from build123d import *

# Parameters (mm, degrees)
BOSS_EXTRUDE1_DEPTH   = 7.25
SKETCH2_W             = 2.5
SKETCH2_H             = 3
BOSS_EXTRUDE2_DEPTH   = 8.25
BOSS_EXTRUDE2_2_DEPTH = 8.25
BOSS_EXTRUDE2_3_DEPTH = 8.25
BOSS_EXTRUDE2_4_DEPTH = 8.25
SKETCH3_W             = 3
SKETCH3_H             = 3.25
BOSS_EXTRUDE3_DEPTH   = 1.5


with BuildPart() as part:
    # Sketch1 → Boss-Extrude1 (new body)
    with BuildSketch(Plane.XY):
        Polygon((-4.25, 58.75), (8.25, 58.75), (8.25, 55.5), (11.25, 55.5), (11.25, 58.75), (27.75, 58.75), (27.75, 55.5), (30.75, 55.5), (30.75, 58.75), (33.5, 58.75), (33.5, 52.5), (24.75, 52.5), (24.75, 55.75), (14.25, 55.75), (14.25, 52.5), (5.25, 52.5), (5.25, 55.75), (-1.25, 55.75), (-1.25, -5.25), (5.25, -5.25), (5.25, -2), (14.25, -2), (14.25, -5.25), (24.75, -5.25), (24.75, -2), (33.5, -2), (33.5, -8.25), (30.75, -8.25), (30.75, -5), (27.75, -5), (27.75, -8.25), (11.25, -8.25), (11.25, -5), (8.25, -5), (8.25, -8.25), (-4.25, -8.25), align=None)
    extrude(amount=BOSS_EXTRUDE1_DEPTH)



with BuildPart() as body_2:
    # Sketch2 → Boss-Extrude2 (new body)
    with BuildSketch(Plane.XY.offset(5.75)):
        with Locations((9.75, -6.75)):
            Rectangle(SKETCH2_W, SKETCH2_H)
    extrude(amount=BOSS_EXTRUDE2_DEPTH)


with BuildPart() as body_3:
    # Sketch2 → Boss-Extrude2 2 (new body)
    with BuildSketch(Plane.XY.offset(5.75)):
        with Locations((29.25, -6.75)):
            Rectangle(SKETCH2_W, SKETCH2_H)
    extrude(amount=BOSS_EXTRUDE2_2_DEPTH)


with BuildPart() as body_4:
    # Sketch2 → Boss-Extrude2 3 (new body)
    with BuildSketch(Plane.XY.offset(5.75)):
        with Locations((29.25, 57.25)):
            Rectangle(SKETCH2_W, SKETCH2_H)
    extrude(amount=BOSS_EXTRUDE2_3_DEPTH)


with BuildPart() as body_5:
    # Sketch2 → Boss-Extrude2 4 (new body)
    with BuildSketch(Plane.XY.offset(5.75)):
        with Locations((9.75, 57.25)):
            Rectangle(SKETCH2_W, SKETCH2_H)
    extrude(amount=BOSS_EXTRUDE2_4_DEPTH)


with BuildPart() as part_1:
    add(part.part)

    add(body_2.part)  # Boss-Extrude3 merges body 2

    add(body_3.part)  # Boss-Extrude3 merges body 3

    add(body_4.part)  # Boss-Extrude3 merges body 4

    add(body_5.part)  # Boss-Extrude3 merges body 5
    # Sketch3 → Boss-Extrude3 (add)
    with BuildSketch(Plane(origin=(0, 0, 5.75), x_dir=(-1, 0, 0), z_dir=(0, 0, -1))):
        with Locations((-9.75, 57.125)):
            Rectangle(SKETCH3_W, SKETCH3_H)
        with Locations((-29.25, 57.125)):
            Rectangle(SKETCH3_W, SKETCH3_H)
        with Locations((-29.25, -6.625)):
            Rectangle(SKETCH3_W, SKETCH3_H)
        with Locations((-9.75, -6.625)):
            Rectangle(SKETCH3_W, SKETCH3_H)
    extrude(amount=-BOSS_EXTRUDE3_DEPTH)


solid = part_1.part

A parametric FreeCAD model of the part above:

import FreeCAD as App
import Part
import Sketcher
Q = App.Units.Quantity

doc = App.newDocument("Part")
body = doc.addObject("PartDesign::Body", "Body")

# Sketch on XY plane
sketch1 = body.newObject("Sketcher::SketchObject", "Sketch")
sketch1.AttachmentSupport = (doc.getObject("XY_Plane"), [""])
sketch1.MapMode = "FlatFace"
sketch1.addGeometry(Part.LineSegment(App.Vector(8.25, 58.75, 0), App.Vector(-4.25, 58.75, 0)), False)
sketch1.addGeometry(Part.LineSegment(App.Vector(-4.25, 58.75, 0), App.Vector(-4.25, -8.25, 0)), False)
sketch1.addGeometry(Part.LineSegment(App.Vector(-4.25, -8.25, 0), App.Vector(8.25, -8.25, 0)), False)
sketch1.addGeometry(Part.LineSegment(App.Vector(8.25, -8.25, 0), App.Vector(8.25, -5, 0)), False)
sketch1.addGeometry(Part.LineSegment(App.Vector(8.25, -5, 0), App.Vector(11.25, -5, 0)), False)
sketch1.addGeometry(Part.LineSegment(App.Vector(11.25, -5, 0), App.Vector(11.25, -8.25, 0)), False)
sketch1.addGeometry(Part.LineSegment(App.Vector(11.25, -8.25, 0), App.Vector(27.75, -8.25, 0)), False)
sketch1.addGeometry(Part.LineSegment(App.Vector(27.75, -8.25, 0), App.Vector(27.75, -5, 0)), False)
sketch1.addGeometry(Part.LineSegment(App.Vector(27.75, -5, 0), App.Vector(30.75, -5, 0)), False)
sketch1.addGeometry(Part.LineSegment(App.Vector(30.75, -5, 0), App.Vector(30.75, -8.25, 0)), False)
sketch1.addGeometry(Part.LineSegment(App.Vector(30.75, -8.25, 0), App.Vector(33.5, -8.25, 0)), False)
sketch1.addGeometry(Part.LineSegment(App.Vector(33.5, -8.25, 0), App.Vector(33.5, -2, 0)), False)
sketch1.addGeometry(Part.LineSegment(App.Vector(33.5, -2, 0), App.Vector(24.75, -2, 0)), False)
sketch1.addGeometry(Part.LineSegment(App.Vector(24.75, -2, 0), App.Vector(24.75, -5.25, 0)), False)
sketch1.addGeometry(Part.LineSegment(App.Vector(24.75, -5.25, 0), App.Vector(14.25, -5.25, 0)), False)
sketch1.addGeometry(Part.LineSegment(App.Vector(14.25, -5.25, 0), App.Vector(14.25, -2, 0)), False)
sketch1.addGeometry(Part.LineSegment(App.Vector(14.25, -2, 0), App.Vector(5.25, -2, 0)), False)
sketch1.addGeometry(Part.LineSegment(App.Vector(5.25, -2, 0), App.Vector(5.25, -5.25, 0)), False)
sketch1.addGeometry(Part.LineSegment(App.Vector(5.25, -5.25, 0), App.Vector(-1.25, -5.25, 0)), False)
sketch1.addGeometry(Part.LineSegment(App.Vector(-1.25, -5.25, 0), App.Vector(-1.25, 55.75, 0)), False)
sketch1.addGeometry(Part.LineSegment(App.Vector(-1.25, 55.75, 0), App.Vector(5.25, 55.75, 0)), False)
sketch1.addGeometry(Part.LineSegment(App.Vector(5.25, 55.75, 0), App.Vector(5.25, 52.5, 0)), False)
sketch1.addGeometry(Part.LineSegment(App.Vector(5.25, 52.5, 0), App.Vector(14.25, 52.5, 0)), False)
sketch1.addGeometry(Part.LineSegment(App.Vector(14.25, 52.5, 0), App.Vector(14.25, 55.75, 0)), False)
sketch1.addGeometry(Part.LineSegment(App.Vector(14.25, 55.75, 0), App.Vector(24.75, 55.75, 0)), False)
sketch1.addGeometry(Part.LineSegment(App.Vector(24.75, 55.75, 0), App.Vector(24.75, 52.5, 0)), False)
sketch1.addGeometry(Part.LineSegment(App.Vector(24.75, 52.5, 0), App.Vector(33.5, 52.5, 0)), False)
sketch1.addGeometry(Part.LineSegment(App.Vector(33.5, 52.5, 0), App.Vector(33.5, 58.75, 0)), False)
sketch1.addGeometry(Part.LineSegment(App.Vector(33.5, 58.75, 0), App.Vector(30.75, 58.75, 0)), False)
sketch1.addGeometry(Part.LineSegment(App.Vector(30.75, 58.75, 0), App.Vector(30.75, 55.5, 0)), False)
sketch1.addGeometry(Part.LineSegment(App.Vector(30.75, 55.5, 0), App.Vector(27.75, 55.5, 0)), False)
sketch1.addGeometry(Part.LineSegment(App.Vector(27.75, 55.5, 0), App.Vector(27.75, 58.75, 0)), False)
sketch1.addGeometry(Part.LineSegment(App.Vector(27.75, 58.75, 0), App.Vector(11.25, 58.75, 0)), False)
sketch1.addGeometry(Part.LineSegment(App.Vector(11.25, 58.75, 0), App.Vector(11.25, 55.5, 0)), False)
sketch1.addGeometry(Part.LineSegment(App.Vector(11.25, 55.5, 0), App.Vector(8.25, 55.5, 0)), False)
sketch1.addGeometry(Part.LineSegment(App.Vector(8.25, 55.5, 0), App.Vector(8.25, 58.75, 0)), False)
sketch1.addConstraint(Sketcher.Constraint("Coincident", 0, 2, 1, 1))
sketch1.addConstraint(Sketcher.Constraint("Coincident", 1, 2, 2, 1))
sketch1.addConstraint(Sketcher.Constraint("Coincident", 2, 2, 3, 1))
sketch1.addConstraint(Sketcher.Constraint("Coincident", 3, 2, 4, 1))
sketch1.addConstraint(Sketcher.Constraint("Coincident", 4, 2, 5, 1))
sketch1.addConstraint(Sketcher.Constraint("Coincident", 5, 2, 6, 1))
sketch1.addConstraint(Sketcher.Constraint("Coincident", 6, 2, 7, 1))
sketch1.addConstraint(Sketcher.Constraint("Coincident", 7, 2, 8, 1))
sketch1.addConstraint(Sketcher.Constraint("Coincident", 8, 2, 9, 1))
sketch1.addConstraint(Sketcher.Constraint("Coincident", 9, 2, 10, 1))
sketch1.addConstraint(Sketcher.Constraint("Coincident", 10, 2, 11, 1))
sketch1.addConstraint(Sketcher.Constraint("Coincident", 11, 2, 12, 1))
sketch1.addConstraint(Sketcher.Constraint("Coincident", 12, 2, 13, 1))
sketch1.addConstraint(Sketcher.Constraint("Coincident", 13, 2, 14, 1))
sketch1.addConstraint(Sketcher.Constraint("Coincident", 14, 2, 15, 1))
sketch1.addConstraint(Sketcher.Constraint("Coincident", 15, 2, 16, 1))
sketch1.addConstraint(Sketcher.Constraint("Coincident", 16, 2, 17, 1))
sketch1.addConstraint(Sketcher.Constraint("Coincident", 17, 2, 18, 1))
sketch1.addConstraint(Sketcher.Constraint("Coincident", 18, 2, 19, 1))
sketch1.addConstraint(Sketcher.Constraint("Coincident", 19, 2, 20, 1))
sketch1.addConstraint(Sketcher.Constraint("Coincident", 20, 2, 21, 1))
sketch1.addConstraint(Sketcher.Constraint("Coincident", 21, 2, 22, 1))
sketch1.addConstraint(Sketcher.Constraint("Coincident", 22, 2, 23, 1))
sketch1.addConstraint(Sketcher.Constraint("Coincident", 23, 2, 24, 1))
sketch1.addConstraint(Sketcher.Constraint("Coincident", 24, 2, 25, 1))
sketch1.addConstraint(Sketcher.Constraint("Coincident", 25, 2, 26, 1))
sketch1.addConstraint(Sketcher.Constraint("Coincident", 26, 2, 27, 1))
sketch1.addConstraint(Sketcher.Constraint("Coincident", 27, 2, 28, 1))
sketch1.addConstraint(Sketcher.Constraint("Coincident", 28, 2, 29, 1))
sketch1.addConstraint(Sketcher.Constraint("Coincident", 29, 2, 30, 1))
sketch1.addConstraint(Sketcher.Constraint("Coincident", 30, 2, 31, 1))
sketch1.addConstraint(Sketcher.Constraint("Coincident", 31, 2, 32, 1))
sketch1.addConstraint(Sketcher.Constraint("Coincident", 32, 2, 33, 1))
sketch1.addConstraint(Sketcher.Constraint("Coincident", 33, 2, 34, 1))
sketch1.addConstraint(Sketcher.Constraint("Coincident", 34, 2, 35, 1))
sketch1.addConstraint(Sketcher.Constraint("Coincident", 35, 2, 0, 1))
sketch1.addConstraint(Sketcher.Constraint("Horizontal", 0))
sketch1.addConstraint(Sketcher.Constraint("Vertical", 1))
sketch1.addConstraint(Sketcher.Constraint("Horizontal", 2))
sketch1.addConstraint(Sketcher.Constraint("Vertical", 3))
sketch1.addConstraint(Sketcher.Constraint("Horizontal", 4))
sketch1.addConstraint(Sketcher.Constraint("Vertical", 5))
sketch1.addConstraint(Sketcher.Constraint("Horizontal", 6))
sketch1.addConstraint(Sketcher.Constraint("Vertical", 7))
sketch1.addConstraint(Sketcher.Constraint("Horizontal", 8))
sketch1.addConstraint(Sketcher.Constraint("Vertical", 9))
sketch1.addConstraint(Sketcher.Constraint("Horizontal", 10))
sketch1.addConstraint(Sketcher.Constraint("Vertical", 11))
sketch1.addConstraint(Sketcher.Constraint("Horizontal", 12))
sketch1.addConstraint(Sketcher.Constraint("Vertical", 13))
sketch1.addConstraint(Sketcher.Constraint("Horizontal", 14))
sketch1.addConstraint(Sketcher.Constraint("Vertical", 15))
sketch1.addConstraint(Sketcher.Constraint("Horizontal", 16))
sketch1.addConstraint(Sketcher.Constraint("Vertical", 17))
sketch1.addConstraint(Sketcher.Constraint("Horizontal", 18))
sketch1.addConstraint(Sketcher.Constraint("Vertical", 19))
sketch1.addConstraint(Sketcher.Constraint("Horizontal", 20))
sketch1.addConstraint(Sketcher.Constraint("Vertical", 21))
sketch1.addConstraint(Sketcher.Constraint("Horizontal", 22))
sketch1.addConstraint(Sketcher.Constraint("Vertical", 23))
sketch1.addConstraint(Sketcher.Constraint("Horizontal", 24))
sketch1.addConstraint(Sketcher.Constraint("Vertical", 25))
sketch1.addConstraint(Sketcher.Constraint("Horizontal", 26))
sketch1.addConstraint(Sketcher.Constraint("Vertical", 27))
sketch1.addConstraint(Sketcher.Constraint("Horizontal", 28))
sketch1.addConstraint(Sketcher.Constraint("Vertical", 29))
sketch1.addConstraint(Sketcher.Constraint("Horizontal", 30))
sketch1.addConstraint(Sketcher.Constraint("Vertical", 31))
sketch1.addConstraint(Sketcher.Constraint("Horizontal", 32))
sketch1.addConstraint(Sketcher.Constraint("Vertical", 33))
sketch1.addConstraint(Sketcher.Constraint("Horizontal", 34))
sketch1.addConstraint(Sketcher.Constraint("Vertical", 35))
sketch1.addConstraint(Sketcher.Constraint("Horizontal", 2, 2, 5, 2))
sketch1.addConstraint(Sketcher.Constraint("Horizontal", 4, 2, 7, 2))
sketch1.addConstraint(Sketcher.Constraint("Horizontal", 6, 2, 9, 2))
sketch1.addConstraint(Sketcher.Constraint("Horizontal", 12, 2, 15, 2))
sketch1.addConstraint(Sketcher.Constraint("Horizontal", 14, 2, 17, 2))
sketch1.addConstraint(Sketcher.Constraint("Horizontal", 20, 2, 23, 2))
sketch1.addConstraint(Sketcher.Constraint("Horizontal", 22, 2, 25, 2))
sketch1.addConstraint(Sketcher.Constraint("Horizontal", 0, 2, 27, 2))
sketch1.addConstraint(Sketcher.Constraint("Horizontal", 28, 2, 31, 2))
sketch1.addConstraint(Sketcher.Constraint("Horizontal", 30, 2, 33, 2))
sketch1.addConstraint(Sketcher.Constraint("Vertical", 17, 2, 20, 2))
sketch1.addConstraint(Sketcher.Constraint("Vertical", 15, 2, 22, 2))
sketch1.addConstraint(Sketcher.Constraint("Vertical", 13, 2, 24, 2))
sketch1.addConstraint(Sketcher.Constraint("Vertical", 11, 2, 26, 2))
sketch1.addConstraint(Sketcher.Constraint("Vertical", 9, 2, 28, 2))
sketch1.addConstraint(Sketcher.Constraint("Vertical", 7, 2, 30, 2))
sketch1.addConstraint(Sketcher.Constraint("Vertical", 5, 2, 32, 2))
sketch1.addConstraint(Sketcher.Constraint("Vertical", 3, 2, 34, 2))
sketch1.addConstraint(Sketcher.Constraint("Equal", 4, 8))
sketch1.addConstraint(Sketcher.Constraint("Equal", 9, 13))
sketch1.addConstraint(Sketcher.Constraint("Equal", 17, 21))
sketch1.addConstraint(Sketcher.Constraint("Equal", 11, 27))
sketch1.addConstraint(Sketcher.Constraint("Equal", 25, 29))
sketch1.addConstraint(Sketcher.Constraint("DistanceX", 4, 1, 4, 2, Q("3 mm")))
sketch1.addConstraint(Sketcher.Constraint("DistanceX", 16, 2, 16, 1, Q("9 mm")))
sketch1.addConstraint(Sketcher.Constraint("DistanceY", 1, 2, 1, 1, Q("67 mm")))
sketch1.addConstraint(Sketcher.Constraint("DistanceY", 19, 1, 19, 2, Q("61 mm")))
sketch1.addConstraint(Sketcher.Constraint("DistanceX", 0, 2, 0, 1, Q("12.5 mm")))
sketch1.addConstraint(Sketcher.Constraint("DistanceX", 6, 1, 6, 2, Q("16.5 mm")))
sketch1.addConstraint(Sketcher.Constraint("DistanceX", 14, 2, 14, 1, Q("10.5 mm")))
sketch1.addConstraint(Sketcher.Constraint("DistanceX", 18, 2, 18, 1, Q("6.5 mm")))
sketch1.addConstraint(Sketcher.Constraint("DistanceY", 3, 2, -1, 1, Q("5 mm")))
sketch1.addConstraint(Sketcher.Constraint("DistanceX", 12, 2, 7, 2, Q("3 mm")))
sketch1.addConstraint(Sketcher.Constraint("DistanceX", 10, 1, 10, 2, Q("2.75 mm")))
sketch1.addConstraint(Sketcher.Constraint("DistanceY", 3, 1, 3, 2, Q("3.25 mm")))
sketch1.addConstraint(Sketcher.Constraint("DistanceX", -1, 1, 10, 2, Q("33.5 mm")))
pad1 = body.newObject("PartDesign::Pad", "Pad")
pad1.Profile = sketch1
pad1.Length = 7.25
body2 = doc.addObject("PartDesign::Body", "Body001")

# Sketch on XY plane
sketch2 = body2.newObject("Sketcher::SketchObject", "Sketch001")
sketch2.AttachmentSupport = (doc.getObject("XY_Plane001"), [""])
sketch2.MapMode = "FlatFace"
sketch2.AttachmentOffset = App.Placement(App.Vector(0, 0, 5.75), App.Rotation())
sketch2.addGeometry(Part.LineSegment(App.Vector(8.5, -5.25, 0), App.Vector(8.5, -8.25, 0)), False)
sketch2.addGeometry(Part.LineSegment(App.Vector(8.5, -8.25, 0), App.Vector(11, -8.25, 0)), False)
sketch2.addGeometry(Part.LineSegment(App.Vector(11, -8.25, 0), App.Vector(11, -5.25, 0)), False)
sketch2.addGeometry(Part.LineSegment(App.Vector(11, -5.25, 0), App.Vector(8.5, -5.25, 0)), False)
sketch2.addConstraint(Sketcher.Constraint("Coincident", 0, 2, 1, 1))
sketch2.addConstraint(Sketcher.Constraint("Coincident", 1, 2, 2, 1))
sketch2.addConstraint(Sketcher.Constraint("Coincident", 2, 2, 3, 1))
sketch2.addConstraint(Sketcher.Constraint("Coincident", 3, 2, 0, 1))
sketch2.addConstraint(Sketcher.Constraint("Vertical", 0))
sketch2.addConstraint(Sketcher.Constraint("Horizontal", 1))
sketch2.addConstraint(Sketcher.Constraint("Vertical", 2))
sketch2.addConstraint(Sketcher.Constraint("Horizontal", 3))
sketch2.addConstraint(Sketcher.Constraint("DistanceY", 0, 2, 0, 1, Q("3 mm")))
sketch2.addConstraint(Sketcher.Constraint("DistanceX", 1, 1, 1, 2, Q("2.5 mm")))
sketch2.addConstraint(Sketcher.Constraint("DistanceX", -1, 1, 1, 2, Q("11 mm")))
sketch2.addConstraint(Sketcher.Constraint("DistanceY", 0, 2, -1, 1, Q("8.25 mm")))
pad2 = body2.newObject("PartDesign::Pad", "Pad001")
pad2.Profile = sketch2
pad2.Length = 8.25
body3 = doc.addObject("PartDesign::Body", "Body002")

# Sketch on XY plane
sketch3 = body3.newObject("Sketcher::SketchObject", "Sketch002")
sketch3.AttachmentSupport = (doc.getObject("XY_Plane002"), [""])
sketch3.MapMode = "FlatFace"
sketch3.AttachmentOffset = App.Placement(App.Vector(0, 0, 5.75), App.Rotation())
sketch3.addGeometry(Part.LineSegment(App.Vector(28, -5.25, 0), App.Vector(28, -8.25, 0)), False)
sketch3.addGeometry(Part.LineSegment(App.Vector(28, -8.25, 0), App.Vector(30.5, -8.25, 0)), False)
sketch3.addGeometry(Part.LineSegment(App.Vector(30.5, -8.25, 0), App.Vector(30.5, -5.25, 0)), False)
sketch3.addGeometry(Part.LineSegment(App.Vector(30.5, -5.25, 0), App.Vector(28, -5.25, 0)), False)
sketch3.addConstraint(Sketcher.Constraint("Coincident", 0, 2, 1, 1))
sketch3.addConstraint(Sketcher.Constraint("Coincident", 1, 2, 2, 1))
sketch3.addConstraint(Sketcher.Constraint("Coincident", 2, 2, 3, 1))
sketch3.addConstraint(Sketcher.Constraint("Coincident", 3, 2, 0, 1))
sketch3.addConstraint(Sketcher.Constraint("Vertical", 0))
sketch3.addConstraint(Sketcher.Constraint("Horizontal", 1))
sketch3.addConstraint(Sketcher.Constraint("Vertical", 2))
sketch3.addConstraint(Sketcher.Constraint("Horizontal", 3))
sketch3.addConstraint(Sketcher.Constraint("DistanceY", 0, 2, 0, 1, Q("3 mm")))
sketch3.addConstraint(Sketcher.Constraint("DistanceX", 1, 1, 1, 2, Q("2.5 mm")))
sketch3.addConstraint(Sketcher.Constraint("DistanceX", -1, 1, 0, 2, Q("28 mm")))
sketch3.addConstraint(Sketcher.Constraint("DistanceY", 0, 2, -1, 1, Q("8.25 mm")))
pad3 = body3.newObject("PartDesign::Pad", "Pad002")
pad3.Profile = sketch3
pad3.Length = 8.25
body4 = doc.addObject("PartDesign::Body", "Body003")

# Sketch on XY plane
sketch4 = body4.newObject("Sketcher::SketchObject", "Sketch003")
sketch4.AttachmentSupport = (doc.getObject("XY_Plane003"), [""])
sketch4.MapMode = "FlatFace"
sketch4.AttachmentOffset = App.Placement(App.Vector(0, 0, 5.75), App.Rotation())
sketch4.addGeometry(Part.LineSegment(App.Vector(28, 58.75, 0), App.Vector(28, 55.75, 0)), False)
sketch4.addGeometry(Part.LineSegment(App.Vector(28, 55.75, 0), App.Vector(30.5, 55.75, 0)), False)
sketch4.addGeometry(Part.LineSegment(App.Vector(30.5, 55.75, 0), App.Vector(30.5, 58.75, 0)), False)
sketch4.addGeometry(Part.LineSegment(App.Vector(30.5, 58.75, 0), App.Vector(28, 58.75, 0)), False)
sketch4.addConstraint(Sketcher.Constraint("Coincident", 0, 2, 1, 1))
sketch4.addConstraint(Sketcher.Constraint("Coincident", 1, 2, 2, 1))
sketch4.addConstraint(Sketcher.Constraint("Coincident", 2, 2, 3, 1))
sketch4.addConstraint(Sketcher.Constraint("Coincident", 3, 2, 0, 1))
sketch4.addConstraint(Sketcher.Constraint("Vertical", 0))
sketch4.addConstraint(Sketcher.Constraint("Horizontal", 1))
sketch4.addConstraint(Sketcher.Constraint("Vertical", 2))
sketch4.addConstraint(Sketcher.Constraint("Horizontal", 3))
sketch4.addConstraint(Sketcher.Constraint("DistanceY", 0, 2, 0, 1, Q("3 mm")))
sketch4.addConstraint(Sketcher.Constraint("DistanceX", 1, 1, 1, 2, Q("2.5 mm")))
sketch4.addConstraint(Sketcher.Constraint("DistanceX", -1, 1, 0, 2, Q("28 mm")))
sketch4.addConstraint(Sketcher.Constraint("DistanceY", -1, 1, 0, 2, Q("55.75 mm")))
pad4 = body4.newObject("PartDesign::Pad", "Pad003")
pad4.Profile = sketch4
pad4.Length = 8.25
body5 = doc.addObject("PartDesign::Body", "Body004")

# Sketch on XY plane
sketch5 = body5.newObject("Sketcher::SketchObject", "Sketch004")
sketch5.AttachmentSupport = (doc.getObject("XY_Plane004"), [""])
sketch5.MapMode = "FlatFace"
sketch5.AttachmentOffset = App.Placement(App.Vector(0, 0, 5.75), App.Rotation())
sketch5.addGeometry(Part.LineSegment(App.Vector(8.5, 58.75, 0), App.Vector(8.5, 55.75, 0)), False)
sketch5.addGeometry(Part.LineSegment(App.Vector(8.5, 55.75, 0), App.Vector(11, 55.75, 0)), False)
sketch5.addGeometry(Part.LineSegment(App.Vector(11, 55.75, 0), App.Vector(11, 58.75, 0)), False)
sketch5.addGeometry(Part.LineSegment(App.Vector(11, 58.75, 0), App.Vector(8.5, 58.75, 0)), False)
sketch5.addConstraint(Sketcher.Constraint("Coincident", 0, 2, 1, 1))
sketch5.addConstraint(Sketcher.Constraint("Coincident", 1, 2, 2, 1))
sketch5.addConstraint(Sketcher.Constraint("Coincident", 2, 2, 3, 1))
sketch5.addConstraint(Sketcher.Constraint("Coincident", 3, 2, 0, 1))
sketch5.addConstraint(Sketcher.Constraint("Vertical", 0))
sketch5.addConstraint(Sketcher.Constraint("Horizontal", 1))
sketch5.addConstraint(Sketcher.Constraint("Vertical", 2))
sketch5.addConstraint(Sketcher.Constraint("Horizontal", 3))
sketch5.addConstraint(Sketcher.Constraint("DistanceY", 0, 2, 0, 1, Q("3 mm")))
sketch5.addConstraint(Sketcher.Constraint("DistanceX", 1, 1, 1, 2, Q("2.5 mm")))
sketch5.addConstraint(Sketcher.Constraint("DistanceX", -1, 1, 1, 2, Q("11 mm")))
sketch5.addConstraint(Sketcher.Constraint("DistanceY", -1, 1, 0, 2, Q("55.75 mm")))
pad5 = body5.newObject("PartDesign::Pad", "Pad004")
pad5.Profile = sketch5
pad5.Length = 8.25
body.AllowCompound = True
doc.recompute()

boolean = body.newObject("PartDesign::Boolean", "Boolean")
boolean.Type = "Fuse"
boolean.addObjects([body2])
doc.recompute()

boolean2 = body.newObject("PartDesign::Boolean", "Boolean001")
boolean2.Type = "Fuse"
boolean2.addObjects([body3])
doc.recompute()

boolean3 = body.newObject("PartDesign::Boolean", "Boolean002")
boolean3.Type = "Fuse"
boolean3.addObjects([body4])
doc.recompute()

boolean4 = body.newObject("PartDesign::Boolean", "Boolean003")
boolean4.Type = "Fuse"
boolean4.addObjects([body5])

# Sketch on XY plane
sketch6 = body.newObject("Sketcher::SketchObject", "Sketch005")
sketch6.AttachmentSupport = (doc.getObject("XY_Plane"), [""])
sketch6.MapMode = "FlatFace"
sketch6.AttachmentOffset = App.Placement(App.Vector(0, 0, 5.75), App.Rotation())
sketch6.addGeometry(Part.LineSegment(App.Vector(11.25, 58.75, 0), App.Vector(11.25, 55.5, 0)), False)
sketch6.addGeometry(Part.LineSegment(App.Vector(11.25, 55.5, 0), App.Vector(8.25, 55.5, 0)), False)
sketch6.addGeometry(Part.LineSegment(App.Vector(8.25, 55.5, 0), App.Vector(8.25, 58.75, 0)), False)
sketch6.addGeometry(Part.LineSegment(App.Vector(8.25, 58.75, 0), App.Vector(11.25, 58.75, 0)), False)
sketch6.addGeometry(Part.LineSegment(App.Vector(30.75, 58.75, 0), App.Vector(30.75, 55.5, 0)), False)
sketch6.addGeometry(Part.LineSegment(App.Vector(30.75, 55.5, 0), App.Vector(27.75, 55.5, 0)), False)
sketch6.addGeometry(Part.LineSegment(App.Vector(27.75, 55.5, 0), App.Vector(27.75, 58.75, 0)), False)
sketch6.addGeometry(Part.LineSegment(App.Vector(27.75, 58.75, 0), App.Vector(30.75, 58.75, 0)), False)
sketch6.addGeometry(Part.LineSegment(App.Vector(30.75, -5, 0), App.Vector(30.75, -8.25, 0)), False)
sketch6.addGeometry(Part.LineSegment(App.Vector(30.75, -8.25, 0), App.Vector(27.75, -8.25, 0)), False)
sketch6.addGeometry(Part.LineSegment(App.Vector(27.75, -8.25, 0), App.Vector(27.75, -5, 0)), False)
sketch6.addGeometry(Part.LineSegment(App.Vector(27.75, -5, 0), App.Vector(30.75, -5, 0)), False)
sketch6.addGeometry(Part.LineSegment(App.Vector(11.25, -5, 0), App.Vector(11.25, -8.25, 0)), False)
sketch6.addGeometry(Part.LineSegment(App.Vector(11.25, -8.25, 0), App.Vector(8.25, -8.25, 0)), False)
sketch6.addGeometry(Part.LineSegment(App.Vector(8.25, -8.25, 0), App.Vector(8.25, -5, 0)), False)
sketch6.addGeometry(Part.LineSegment(App.Vector(8.25, -5, 0), App.Vector(11.25, -5, 0)), False)
sketch6.addConstraint(Sketcher.Constraint("Coincident", 0, 2, 1, 1))
sketch6.addConstraint(Sketcher.Constraint("Coincident", 1, 2, 2, 1))
sketch6.addConstraint(Sketcher.Constraint("Coincident", 2, 2, 3, 1))
sketch6.addConstraint(Sketcher.Constraint("Coincident", 3, 2, 0, 1))
sketch6.addConstraint(Sketcher.Constraint("Coincident", 4, 2, 5, 1))
sketch6.addConstraint(Sketcher.Constraint("Coincident", 5, 2, 6, 1))
sketch6.addConstraint(Sketcher.Constraint("Coincident", 6, 2, 7, 1))
sketch6.addConstraint(Sketcher.Constraint("Coincident", 7, 2, 4, 1))
sketch6.addConstraint(Sketcher.Constraint("Coincident", 8, 2, 9, 1))
sketch6.addConstraint(Sketcher.Constraint("Coincident", 9, 2, 10, 1))
sketch6.addConstraint(Sketcher.Constraint("Coincident", 10, 2, 11, 1))
sketch6.addConstraint(Sketcher.Constraint("Coincident", 11, 2, 8, 1))
sketch6.addConstraint(Sketcher.Constraint("Coincident", 12, 2, 13, 1))
sketch6.addConstraint(Sketcher.Constraint("Coincident", 13, 2, 14, 1))
sketch6.addConstraint(Sketcher.Constraint("Coincident", 14, 2, 15, 1))
sketch6.addConstraint(Sketcher.Constraint("Coincident", 15, 2, 12, 1))
sketch6.addConstraint(Sketcher.Constraint("Vertical", 0))
sketch6.addConstraint(Sketcher.Constraint("Horizontal", 1))
sketch6.addConstraint(Sketcher.Constraint("Vertical", 2))
sketch6.addConstraint(Sketcher.Constraint("Horizontal", 3))
sketch6.addConstraint(Sketcher.Constraint("Vertical", 4))
sketch6.addConstraint(Sketcher.Constraint("Horizontal", 5))
sketch6.addConstraint(Sketcher.Constraint("Vertical", 6))
sketch6.addConstraint(Sketcher.Constraint("Horizontal", 7))
sketch6.addConstraint(Sketcher.Constraint("Vertical", 8))
sketch6.addConstraint(Sketcher.Constraint("Horizontal", 9))
sketch6.addConstraint(Sketcher.Constraint("Vertical", 10))
sketch6.addConstraint(Sketcher.Constraint("Horizontal", 11))
sketch6.addConstraint(Sketcher.Constraint("Vertical", 12))
sketch6.addConstraint(Sketcher.Constraint("Horizontal", 13))
sketch6.addConstraint(Sketcher.Constraint("Vertical", 14))
sketch6.addConstraint(Sketcher.Constraint("Horizontal", 15))
sketch6.addConstraint(Sketcher.Constraint("Horizontal", 1, 2, 4, 2))
sketch6.addConstraint(Sketcher.Constraint("Horizontal", 3, 2, 6, 2))
sketch6.addConstraint(Sketcher.Constraint("Horizontal", 9, 2, 12, 2))
sketch6.addConstraint(Sketcher.Constraint("Horizontal", 11, 2, 14, 2))
sketch6.addConstraint(Sketcher.Constraint("Vertical", 7, 2, 8, 2))
sketch6.addConstraint(Sketcher.Constraint("Vertical", 6, 2, 9, 2))
sketch6.addConstraint(Sketcher.Constraint("Vertical", 3, 2, 12, 2))
sketch6.addConstraint(Sketcher.Constraint("Vertical", 2, 2, 13, 2))
sketch6.addConstraint(Sketcher.Constraint("Equal", 3, 5))
sketch6.addConstraint(Sketcher.Constraint("Equal", 6, 8))
sketch6.addConstraint(Sketcher.Constraint("DistanceX", 1, 2, 1, 1, Q("3 mm")))
sketch6.addConstraint(Sketcher.Constraint("DistanceY", 10, 2, -1, 1, Q("5 mm")))
sketch6.addConstraint(Sketcher.Constraint("DistanceY", 8, 2, 7, 2, Q("67 mm")))
sketch6.addConstraint(Sketcher.Constraint("DistanceY", 0, 2, 0, 1, Q("3.25 mm")))
sketch6.addConstraint(Sketcher.Constraint("DistanceX", 0, 2, 4, 2, Q("19.5 mm")))
sketch6.addConstraint(Sketcher.Constraint("DistanceX", -1, 1, 0, 2, Q("11.25 mm")))
pad6 = body.newObject("PartDesign::Pad", "Pad005")
pad6.Profile = sketch6
pad6.Length = 1.5

doc.recompute()
